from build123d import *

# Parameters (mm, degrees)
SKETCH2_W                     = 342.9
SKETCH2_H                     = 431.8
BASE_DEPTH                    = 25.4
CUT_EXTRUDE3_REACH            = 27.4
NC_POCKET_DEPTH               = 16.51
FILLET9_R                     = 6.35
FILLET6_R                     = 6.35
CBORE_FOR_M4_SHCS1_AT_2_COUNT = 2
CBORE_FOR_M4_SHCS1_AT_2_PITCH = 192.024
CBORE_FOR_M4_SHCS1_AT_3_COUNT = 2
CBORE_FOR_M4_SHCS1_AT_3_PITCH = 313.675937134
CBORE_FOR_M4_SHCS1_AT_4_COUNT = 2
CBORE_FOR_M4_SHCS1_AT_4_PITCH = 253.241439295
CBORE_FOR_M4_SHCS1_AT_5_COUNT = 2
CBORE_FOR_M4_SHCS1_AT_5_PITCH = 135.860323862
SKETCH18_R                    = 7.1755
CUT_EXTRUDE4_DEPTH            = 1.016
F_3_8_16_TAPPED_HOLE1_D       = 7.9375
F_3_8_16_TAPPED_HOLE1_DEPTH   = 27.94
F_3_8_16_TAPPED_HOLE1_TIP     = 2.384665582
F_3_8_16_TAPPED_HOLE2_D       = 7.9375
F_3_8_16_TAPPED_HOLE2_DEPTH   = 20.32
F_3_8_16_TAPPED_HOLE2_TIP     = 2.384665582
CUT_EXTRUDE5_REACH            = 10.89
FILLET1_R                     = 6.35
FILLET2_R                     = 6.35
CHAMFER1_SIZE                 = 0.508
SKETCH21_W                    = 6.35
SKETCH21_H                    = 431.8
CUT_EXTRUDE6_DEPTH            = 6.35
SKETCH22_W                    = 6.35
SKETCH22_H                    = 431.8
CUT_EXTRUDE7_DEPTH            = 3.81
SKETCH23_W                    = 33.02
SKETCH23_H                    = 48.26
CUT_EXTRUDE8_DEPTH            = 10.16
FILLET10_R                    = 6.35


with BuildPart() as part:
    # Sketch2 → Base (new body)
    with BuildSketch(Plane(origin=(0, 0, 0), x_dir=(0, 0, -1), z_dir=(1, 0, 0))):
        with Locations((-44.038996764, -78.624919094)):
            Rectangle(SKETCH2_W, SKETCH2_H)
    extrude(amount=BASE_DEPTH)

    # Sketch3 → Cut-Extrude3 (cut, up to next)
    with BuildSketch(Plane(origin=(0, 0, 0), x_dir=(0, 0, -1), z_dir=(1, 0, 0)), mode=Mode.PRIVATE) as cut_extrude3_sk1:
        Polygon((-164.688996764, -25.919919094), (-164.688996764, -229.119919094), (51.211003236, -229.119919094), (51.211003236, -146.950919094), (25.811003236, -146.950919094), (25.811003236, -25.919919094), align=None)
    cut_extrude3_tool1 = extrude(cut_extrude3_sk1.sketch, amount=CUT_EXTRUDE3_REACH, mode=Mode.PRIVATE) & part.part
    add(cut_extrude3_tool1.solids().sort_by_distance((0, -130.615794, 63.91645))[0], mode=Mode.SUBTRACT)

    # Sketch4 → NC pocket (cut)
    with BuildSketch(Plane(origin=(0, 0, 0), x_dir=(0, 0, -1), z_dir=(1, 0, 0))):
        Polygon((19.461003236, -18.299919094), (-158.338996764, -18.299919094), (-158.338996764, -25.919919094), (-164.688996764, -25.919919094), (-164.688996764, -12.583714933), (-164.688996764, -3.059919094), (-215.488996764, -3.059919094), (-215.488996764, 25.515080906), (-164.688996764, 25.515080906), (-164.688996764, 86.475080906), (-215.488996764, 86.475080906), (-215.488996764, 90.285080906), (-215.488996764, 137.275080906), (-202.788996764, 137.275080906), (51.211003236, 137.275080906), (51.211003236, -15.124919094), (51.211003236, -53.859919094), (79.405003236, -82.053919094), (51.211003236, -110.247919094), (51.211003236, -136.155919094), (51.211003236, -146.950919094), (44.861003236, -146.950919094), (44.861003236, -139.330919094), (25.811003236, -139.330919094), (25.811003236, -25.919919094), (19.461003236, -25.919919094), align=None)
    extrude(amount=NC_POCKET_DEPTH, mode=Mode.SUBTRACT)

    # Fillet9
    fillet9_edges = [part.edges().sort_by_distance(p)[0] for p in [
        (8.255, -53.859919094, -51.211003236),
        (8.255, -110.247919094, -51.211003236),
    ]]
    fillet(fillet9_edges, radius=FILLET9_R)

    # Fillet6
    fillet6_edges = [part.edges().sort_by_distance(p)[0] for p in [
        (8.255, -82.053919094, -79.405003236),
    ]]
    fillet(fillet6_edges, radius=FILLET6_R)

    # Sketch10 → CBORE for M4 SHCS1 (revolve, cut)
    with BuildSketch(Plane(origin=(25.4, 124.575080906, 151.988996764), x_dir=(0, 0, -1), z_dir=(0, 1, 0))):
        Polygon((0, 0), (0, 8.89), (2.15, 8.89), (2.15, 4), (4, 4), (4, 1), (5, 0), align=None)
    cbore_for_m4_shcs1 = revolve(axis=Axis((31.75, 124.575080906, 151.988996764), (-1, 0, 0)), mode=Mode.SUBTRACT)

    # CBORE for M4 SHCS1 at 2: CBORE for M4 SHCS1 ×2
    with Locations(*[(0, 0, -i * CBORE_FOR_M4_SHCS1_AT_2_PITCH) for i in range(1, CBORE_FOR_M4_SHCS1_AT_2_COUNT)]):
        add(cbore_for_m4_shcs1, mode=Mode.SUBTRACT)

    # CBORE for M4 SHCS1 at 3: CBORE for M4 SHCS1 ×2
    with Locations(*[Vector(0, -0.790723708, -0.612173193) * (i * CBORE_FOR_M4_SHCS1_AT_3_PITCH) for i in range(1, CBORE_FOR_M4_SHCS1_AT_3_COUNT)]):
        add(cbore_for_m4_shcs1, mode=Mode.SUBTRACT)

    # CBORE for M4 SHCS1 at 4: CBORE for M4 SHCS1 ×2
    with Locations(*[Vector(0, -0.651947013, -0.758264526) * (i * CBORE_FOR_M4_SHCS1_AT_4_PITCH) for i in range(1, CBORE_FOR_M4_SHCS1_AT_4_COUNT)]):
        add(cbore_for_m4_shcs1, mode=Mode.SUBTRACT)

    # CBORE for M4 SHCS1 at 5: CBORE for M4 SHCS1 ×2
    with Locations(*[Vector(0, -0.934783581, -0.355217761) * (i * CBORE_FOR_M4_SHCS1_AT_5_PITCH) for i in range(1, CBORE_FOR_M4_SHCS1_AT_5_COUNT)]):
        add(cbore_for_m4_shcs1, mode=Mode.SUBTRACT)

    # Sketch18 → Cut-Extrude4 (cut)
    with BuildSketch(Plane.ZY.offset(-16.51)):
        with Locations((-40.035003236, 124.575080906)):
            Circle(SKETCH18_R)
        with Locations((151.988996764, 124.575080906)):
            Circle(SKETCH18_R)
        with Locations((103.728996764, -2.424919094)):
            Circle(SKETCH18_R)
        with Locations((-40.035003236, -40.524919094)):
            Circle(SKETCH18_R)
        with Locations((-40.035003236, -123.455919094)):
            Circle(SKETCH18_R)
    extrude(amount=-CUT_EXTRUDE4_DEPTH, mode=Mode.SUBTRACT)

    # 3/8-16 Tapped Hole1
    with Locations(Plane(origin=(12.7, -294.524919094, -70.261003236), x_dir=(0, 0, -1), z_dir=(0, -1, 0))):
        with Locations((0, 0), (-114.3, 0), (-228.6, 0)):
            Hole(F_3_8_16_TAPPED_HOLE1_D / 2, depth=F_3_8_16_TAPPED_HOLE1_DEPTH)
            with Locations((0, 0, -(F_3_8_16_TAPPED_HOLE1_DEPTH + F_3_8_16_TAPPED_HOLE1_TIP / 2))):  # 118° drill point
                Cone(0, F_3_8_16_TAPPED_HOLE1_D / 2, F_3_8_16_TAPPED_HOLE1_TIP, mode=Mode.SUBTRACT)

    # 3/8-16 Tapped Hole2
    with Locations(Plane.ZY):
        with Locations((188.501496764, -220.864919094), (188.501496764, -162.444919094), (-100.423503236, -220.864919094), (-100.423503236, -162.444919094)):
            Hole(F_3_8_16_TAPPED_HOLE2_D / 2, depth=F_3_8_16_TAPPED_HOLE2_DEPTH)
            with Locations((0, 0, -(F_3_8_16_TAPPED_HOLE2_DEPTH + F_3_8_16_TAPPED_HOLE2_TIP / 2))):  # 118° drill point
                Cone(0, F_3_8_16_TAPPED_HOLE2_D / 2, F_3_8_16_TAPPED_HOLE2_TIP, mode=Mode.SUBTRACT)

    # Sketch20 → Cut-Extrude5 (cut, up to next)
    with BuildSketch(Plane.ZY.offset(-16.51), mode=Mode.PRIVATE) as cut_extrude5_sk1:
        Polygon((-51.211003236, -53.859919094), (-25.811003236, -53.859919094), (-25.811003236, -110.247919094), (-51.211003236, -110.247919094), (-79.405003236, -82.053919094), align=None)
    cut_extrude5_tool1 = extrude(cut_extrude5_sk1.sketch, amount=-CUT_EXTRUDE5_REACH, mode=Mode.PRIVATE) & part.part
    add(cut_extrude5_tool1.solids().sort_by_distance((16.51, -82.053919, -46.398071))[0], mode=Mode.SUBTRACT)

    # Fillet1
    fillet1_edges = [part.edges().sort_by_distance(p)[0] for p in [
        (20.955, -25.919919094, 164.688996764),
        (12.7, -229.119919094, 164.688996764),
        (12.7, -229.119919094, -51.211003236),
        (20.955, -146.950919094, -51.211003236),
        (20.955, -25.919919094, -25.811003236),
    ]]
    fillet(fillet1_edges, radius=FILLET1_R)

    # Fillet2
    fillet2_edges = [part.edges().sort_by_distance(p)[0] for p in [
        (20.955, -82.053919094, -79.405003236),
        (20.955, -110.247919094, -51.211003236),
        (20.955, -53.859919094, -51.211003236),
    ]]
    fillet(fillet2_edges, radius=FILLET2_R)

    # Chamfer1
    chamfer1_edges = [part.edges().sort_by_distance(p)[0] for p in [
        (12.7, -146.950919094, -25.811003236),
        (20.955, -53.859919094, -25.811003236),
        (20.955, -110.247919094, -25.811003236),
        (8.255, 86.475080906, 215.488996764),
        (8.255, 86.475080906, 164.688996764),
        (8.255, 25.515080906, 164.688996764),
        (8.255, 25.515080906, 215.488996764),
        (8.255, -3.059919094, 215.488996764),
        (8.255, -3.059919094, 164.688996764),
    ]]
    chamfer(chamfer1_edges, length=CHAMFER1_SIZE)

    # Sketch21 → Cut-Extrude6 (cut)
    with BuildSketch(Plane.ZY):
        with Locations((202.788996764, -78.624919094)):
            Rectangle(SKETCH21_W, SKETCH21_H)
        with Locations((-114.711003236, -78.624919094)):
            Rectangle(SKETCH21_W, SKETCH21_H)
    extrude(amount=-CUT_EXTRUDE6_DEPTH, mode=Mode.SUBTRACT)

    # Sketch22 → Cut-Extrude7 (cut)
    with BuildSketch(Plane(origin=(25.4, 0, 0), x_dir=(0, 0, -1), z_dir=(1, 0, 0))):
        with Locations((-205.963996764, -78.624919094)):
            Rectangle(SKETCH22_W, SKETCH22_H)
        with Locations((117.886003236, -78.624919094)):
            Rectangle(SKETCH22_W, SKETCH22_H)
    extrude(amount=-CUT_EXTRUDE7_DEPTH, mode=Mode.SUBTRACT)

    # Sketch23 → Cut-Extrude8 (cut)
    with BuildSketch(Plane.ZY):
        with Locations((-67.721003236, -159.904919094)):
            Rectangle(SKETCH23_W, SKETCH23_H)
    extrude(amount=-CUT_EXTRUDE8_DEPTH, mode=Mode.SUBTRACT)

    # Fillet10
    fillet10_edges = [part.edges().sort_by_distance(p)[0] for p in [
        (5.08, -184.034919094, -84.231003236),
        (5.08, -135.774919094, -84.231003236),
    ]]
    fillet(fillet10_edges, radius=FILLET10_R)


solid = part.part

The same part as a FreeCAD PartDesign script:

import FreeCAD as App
import Part
import Sketcher
from FreeCAD import Vector
Q = App.Units.Quantity


def edges_at(feature, points):
    """Names of the edges that pass closest to the given points."""
    edges = feature.Shape.Edges
    near = lambda p: min(range(len(edges)), key=lambda i: edges[i].distToShape(Part.Vertex(*p))[0])
    return sorted({f"Edge{near(p) + 1}" for p in points})

doc = App.newDocument("Part")
body = doc.addObject("PartDesign::Body", "Body")

sketch1 = body.newObject("Sketcher::SketchObject", "Sketch")
sketch1.AttachmentSupport = (doc.getObject("YZ_Plane"), [""])
sketch1.MapMode = "FlatFace"
sketch1.addGeometry([
    Part.LineSegment(Vector(137, 215, 0), Vector(-295, 215, 0)),
    Part.LineSegment(Vector(-295, 215, 0), Vector(-295, -127, 0)),
    Part.LineSegment(Vector(-295, -127, 0), Vector(137, -127, 0)),
    Part.LineSegment(Vector(137, -127, 0), Vector(137, 215, 0)),
], False)
sketch1.addConstraint([
    Sketcher.Constraint("Coincident", 0, 2, 1, 1),
    Sketcher.Constraint("Coincident", 1, 2, 2, 1),
    Sketcher.Constraint("Coincident", 2, 2, 3, 1),
    Sketcher.Constraint("Coincident", 3, 2, 0, 1),
    Sketcher.Constraint("Horizontal", 0),
    Sketcher.Constraint("Vertical", 1),
    Sketcher.Constraint("Horizontal", 2),
    Sketcher.Constraint("Vertical", 3),
    Sketcher.Constraint("DistanceX", 0, 2, 0, 1, Q("17 in")),
    Sketcher.Constraint("DistanceY", 1, 2, 1, 1, Q("13.5 in")),
    Sketcher.Constraint("DistanceX", 0, 2, -1, 1, Q("294.524919 mm")),
    Sketcher.Constraint("DistanceY", -1, 1, 0, 2, Q("215.488997 mm")),
])
pad1 = body.newObject("PartDesign::Pad", "Pad")
pad1.Profile = sketch1
pad1.Length = Q("1 in")

sketch2 = body.newObject("Sketcher::SketchObject", "Sketch001")
sketch2.AttachmentSupport = (doc.getObject("YZ_Plane"), [""])
sketch2.MapMode = "FlatFace"
sketch2.addGeometry([
    Part.LineSegment(Vector(-26, 165, 0), Vector(-229, 165, 0)),
    Part.LineSegment(Vector(-229, 165, 0), Vector(-229, -51, 0)),
    Part.LineSegment(Vector(-229, -51, 0), Vector(-147, -51, 0)),
    Part.LineSegment(Vector(-147, -51, 0), Vector(-147, -26, 0)),
    Part.LineSegment(Vector(-147, -26, 0), Vector(-26, -26, 0)),
    Part.LineSegment(Vector(-26, -26, 0), Vector(-26, 165, 0)),
], False)
sketch2.addConstraint([
    Sketcher.Constraint("Coincident", 0, 2, 1, 1),
    Sketcher.Constraint("Coincident", 1, 2, 2, 1),
    Sketcher.Constraint("Coincident", 2, 2, 3, 1),
    Sketcher.Constraint("Coincident", 3, 2, 4, 1),
    Sketcher.Constraint("Coincident", 4, 2, 5, 1),
    Sketcher.Constraint("Coincident", 5, 2, 0, 1),
    Sketcher.Constraint("Horizontal", 0),
    Sketcher.Constraint("Vertical", 1),
    Sketcher.Constraint("Horizontal", 2),
    Sketcher.Constraint("Vertical", 3),
    Sketcher.Constraint("Horizontal", 4),
    Sketcher.Constraint("Vertical", 5),
    Sketcher.Constraint("DistanceX", 0, 2, 0, 1, Q("8 in")),
    Sketcher.Constraint("DistanceY", 3, 1, 3, 2, Q("1 in")),
    Sketcher.Constraint("DistanceY", 1, 2, 1, 1, Q("8.5 in")),
    Sketcher.Constraint("DistanceX", 2, 1, 2, 2, Q("3.235 in")),
    Sketcher.Constraint("DistanceX", 0, 2, -1, 1, Q("229.119919 mm")),
    Sketcher.Constraint("DistanceY", -1, 1, 0, 2, Q("164.688997 mm")),
])
pocket1 = body.newObject("PartDesign::Pocket", "Pocket")
pocket1.Profile = sketch2
pocket1.Type = "UpToFirst"
pocket1.Reversed = True

sketch3 = body.newObject("Sketcher::SketchObject", "Sketch002")
sketch3.AttachmentSupport = (doc.getObject("YZ_Plane"), [""])
sketch3.MapMode = "FlatFace"
sketch3.addGeometry([
    Part.LineSegment(Vector(-18, 158, 0), Vector(-18, -19, 0)),
    Part.LineSegment(Vector(-18, -19, 0), Vector(-26, -19, 0)),
    Part.LineSegment(Vector(-26, -19, 0), Vector(-26, -26, 0)),
    Part.LineSegment(Vector(-26, -26, 0), Vector(-139, -26, 0)),
    Part.LineSegment(Vector(-139, -26, 0), Vector(-139, -45, 0)),
    Part.LineSegment(Vector(-139, -45, 0), Vector(-147, -45, 0)),
    Part.LineSegment(Vector(-147, -45, 0), Vector(-147, -51, 0)),
    Part.LineSegment(Vector(-147, -51, 0), Vector(-110, -51, 0)),
    Part.LineSegment(Vector(-110, -51, 0), Vector(-82, -79, 0)),
    Part.LineSegment(Vector(-82, -79, 0), Vector(-54, -51, 0)),
    Part.LineSegment(Vector(-54, -51, 0), Vector(137, -51, 0)),
    Part.LineSegment(Vector(137, -51, 0), Vector(137, 215, 0)),
    Part.LineSegment(Vector(137, 215, 0), Vector(86, 215, 0)),
    Part.LineSegment(Vector(86, 215, 0), Vector(86, 165, 0)),
    Part.LineSegment(Vector(86, 165, 0), Vector(26, 165, 0)),
    Part.LineSegment(Vector(26, 165, 0), Vector(26, 215, 0)),
    Part.LineSegment(Vector(26, 215, 0), Vector(-3, 215, 0)),
    Part.LineSegment(Vector(-3, 215, 0), Vector(-3, 165, 0)),
    Part.LineSegment(Vector(-3, 165, 0), Vector(-26, 165, 0)),
    Part.LineSegment(Vector(-26, 165, 0), Vector(-26, 158, 0)),
    Part.LineSegment(Vector(-26, 158, 0), Vector(-18, 158, 0)),
], False)
sketch3.addConstraint([
    Sketcher.Constraint("Coincident", 0, 2, 1, 1),
    Sketcher.Constraint("Coincident", 1, 2, 2, 1),
    Sketcher.Constraint("Coincident", 2, 2, 3, 1),
    Sketcher.Constraint("Coincident", 3, 2, 4, 1),
    Sketcher.Constraint("Coincident", 4, 2, 5, 1),
    Sketcher.Constraint("Coincident", 5, 2, 6, 1),
    Sketcher.Constraint("Coincident", 6, 2, 7, 1),
    Sketcher.Constraint("Coincident", 7, 2, 8, 1),
    Sketcher.Constraint("Coincident", 8, 2, 9, 1),
    Sketcher.Constraint("Coincident", 9, 2, 10, 1),
    Sketcher.Constraint("Coincident", 10, 2, 11, 1),
    Sketcher.Constraint("Coincident", 11, 2, 12, 1),
    Sketcher.Constraint("Coincident", 12, 2, 13, 1),
    Sketcher.Constraint("Coincident", 13, 2, 14, 1),
    Sketcher.Constraint("Coincident", 14, 2, 15, 1),
    Sketcher.Constraint("Coincident", 15, 2, 16, 1),
    Sketcher.Constraint("Coincident", 16, 2, 17, 1),
    Sketcher.Constraint("Coincident", 17, 2, 18, 1),
    Sketcher.Constraint("Coincident", 18, 2, 19, 1),
    Sketcher.Constraint("Coincident", 19, 2, 20, 1),
    Sketcher.Constraint("Coincident", 20, 2, 0, 1),
    Sketcher.Constraint("Vertical", 0),
    Sketcher.Constraint("Horizontal", 1),
    Sketcher.Constraint("Vertical", 2),
    Sketcher.Constraint("Horizontal", 3),
    Sketcher.Constraint("Vertical", 4),
    Sketcher.Constraint("Horizontal", 5),
    Sketcher.Constraint("Vertical", 6),
    Sketcher.Constraint("Horizontal", 7),
    Sketcher.Constraint("Horizontal", 10),
    Sketcher.Constraint("Vertical", 11),
    Sketcher.Constraint("Horizontal", 12),
    Sketcher.Constraint("Vertical", 13),
    Sketcher.Constraint("Horizontal", 14),
    Sketcher.Constraint("Vertical", 15),
    Sketcher.Constraint("Horizontal", 16),
    Sketcher.Constraint("Vertical", 17),
    Sketcher.Constraint("Horizontal", 18),
    Sketcher.Constraint("Vertical", 19),
    Sketcher.Constraint("Horizontal", 20),
    Sketcher.Constraint("Perpendicular", 8, 9),
    Sketcher.Constraint("Horizontal", 7, 2, 9, 2),
    Sketcher.Constraint("Horizontal", 12, 2, 15, 2),
    Sketcher.Constraint("Horizontal", 14, 2, 17, 2),
    Sketcher.Constraint("Vertical", 2, 2, 18, 2),
    Sketcher.Constraint("Equal", 1, 5),
    Sketcher.Constraint("Equal", 2, 6),
    Sketcher.Constraint("Equal", 12, 13),
    Sketcher.Constraint("Equal", 6, 19),
    Sketcher.Constraint("Equal", 8, 9),
    Sketcher.Constraint("DistanceX", 12, 2, 12, 1, Q("2 in")),
    Sketcher.Constraint("DistanceY", 0, 2, 0, 1, Q("7 in")),
    Sketcher.Constraint("DistanceX", 1, 2, 1, 1, Q("0.3 in")),
    Sketcher.Constraint("DistanceX", 14, 2, 14, 1, Q("2.4 in")),
    Sketcher.Constraint("DistanceX", 18, 2, 18, 1, Q("0.9 in")),
    Sketcher.Constraint("DistanceY", 11, 1, 11, 2, Q("10.5 in")),
    Sketcher.Constraint("DistanceY", 4, 2, 1, 2, Q("1 in")),
    Sketcher.Constraint("DistanceX", 9, 2, 2, 2, Q("1.1 in")),
    Sketcher.Constraint("DistanceX", 3, 2, 3, 1, Q("4.465 in")),
    Sketcher.Constraint("DistanceX", 7, 1, 7, 2, Q("1.445 in")),
    Sketcher.Constraint("DistanceX", 10, 1, 10, 2, Q("7.525 in")),
    Sketcher.Constraint("DistanceX", 0, 2, -1, 1, Q("18.299919 mm")),
    Sketcher.Constraint("DistanceY", 0, 2, -1, 1, Q("19.461003 mm")),
])
pocket2 = body.newObject("PartDesign::Pocket", "Pocket001")
pocket2.Profile = sketch3
pocket2.Length = Q("0.65 in")
pocket2.Reversed = True
doc.recompute()

fillet = body.newObject("PartDesign::Fillet", "Fillet")
fillet.Base = (pocket2, edges_at(pocket2, [(8.255, -53.86, -51.211), (8.255, -110.248, -51.211)]))
fillet.Radius = Q("0.25 in")
doc.recompute()

fillet2 = body.newObject("PartDesign::Fillet", "Fillet001")
fillet2.Base = (fillet, edges_at(fillet, [(8.255, -82.054, -79.405)]))
fillet2.Radius = Q("0.25 in")

sketch4 = body.newObject("Sketcher::SketchObject", "Sketch003")
sketch4.AttachmentSupport = (doc.getObject("XZ_Plane"), [""])
sketch4.MapMode = "FlatFace"
sketch4.AttachmentOffset = App.Placement(Vector(0, 0, -124.575081), App.Rotation())
sketch4.addGeometry([
    Part.LineSegment(Vector(16.5, 152, 0), Vector(25.4, 152, 0)),
    Part.LineSegment(Vector(25.4, 152, 0), Vector(25.4, 147, 0)),
    Part.LineSegment(Vector(25.4, 147, 0), Vector(24.4, 148, 0)),
    Part.LineSegment(Vector(24.4, 148, 0), Vector(21.4, 148, 0)),
    Part.LineSegment(Vector(21.4, 148, 0), Vector(21.4, 149.8, 0)),
    Part.LineSegment(Vector(21.4, 149.8, 0), Vector(16.5, 149.8, 0)),
    Part.LineSegment(Vector(16.5, 149.8, 0), Vector(16.5, 152, 0)),
], False)
sketch4.addGeometry(Part.LineSegment(Vector(25.4, 152, 0), Vector(16.5, 152, 0)), True)
sketch4.addConstraint([
    Sketcher.Constraint("Coincident", 0, 2, 1, 1),
    Sketcher.Constraint("Coincident", 1, 2, 2, 1),
    Sketcher.Constraint("Coincident", 2, 2, 3, 1),
    Sketcher.Constraint("Coincident", 3, 2, 4, 1),
    Sketcher.Constraint("Coincident", 4, 2, 5, 1),
    Sketcher.Constraint("Coincident", 5, 2, 6, 1),
    Sketcher.Constraint("Coincident", 6, 2, 0, 1),
    Sketcher.Constraint("Horizontal", 0),
    Sketcher.Constraint("Vertical", 1),
    Sketcher.Constraint("Horizontal", 3),
    Sketcher.Constraint("Vertical", 4),
    Sketcher.Constraint("Horizontal", 5),
    Sketcher.Constraint("Vertical", 6),
    Sketcher.Constraint("Horizontal", 7),
    Sketcher.Constraint("Coincident", 7, 1, 0, 2),
    Sketcher.Constraint("Vertical", 5, 2, 7, 2),
    Sketcher.Constraint("DistanceX", -1, 1, 0, 2, Q("1 in")),
    Sketcher.Constraint("Angle", 2, Q("135 deg")),
    Sketcher.Constraint("DistanceX", 0, 1, 0, 2, Q("0.35 in")),
    Sketcher.Constraint("DistanceX", 3, 2, 3, 1, Q("3 mm")),
    Sketcher.Constraint("DistanceX", 5, 2, 5, 1, Q("4.89 mm")),
    Sketcher.Constraint("DistanceY", 1, 2, 1, 1, Q("5 mm")),
    Sketcher.Constraint("DistanceY", 4, 1, 4, 2, Q("1.85 mm")),
    Sketcher.Constraint("DistanceY", -1, 1, 0, 2, Q("151.988997 mm")),
])
groove = body.newObject("PartDesign::Groove", "Groove")
groove.Profile = sketch4
groove.ReferenceAxis = (sketch4, ["Axis0"])
groove.Angle = 360
doc.recompute()

linearpattern = body.newObject("PartDesign::LinearPattern", "LinearPattern")
linearpattern.Originals = [groove]
linearpattern.Direction = (doc.getObject("Z_Axis"), [""])
linearpattern.Mode = "offset"
linearpattern.Offset = Q("7.56 in")
linearpattern.Occurrences = 2
linearpattern.Reversed = True
body.Tip = linearpattern
doc.recompute()

datumline = body.newObject("PartDesign::Line", "DatumLine")
datumline.Placement = App.Placement(Vector(0, 0, 0), App.Rotation(Vector(0, 0, 1), Vector(0, -0.790723708, -0.612173193)))
linearpattern2 = body.newObject("PartDesign::LinearPattern", "LinearPattern001")
linearpattern2.Originals = [groove]
linearpattern2.Direction = (datumline, [""])
linearpattern2.Mode = "offset"
linearpattern2.Offset = 313.675937
linearpattern2.Occurrences = 2
body.Tip = linearpattern2
doc.recompute()

datumline2 = body.newObject("PartDesign::Line", "DatumLine001")
datumline2.Placement = App.Placement(Vector(0, 0, 0), App.Rotation(Vector(0, 0, 1), Vector(0, -0.651947013, -0.758264526)))
linearpattern3 = body.newObject("PartDesign::LinearPattern", "LinearPattern002")
linearpattern3.Originals = [groove]
linearpattern3.Direction = (datumline2, [""])
linearpattern3.Mode = "offset"
linearpattern3.Offset = 253.241439
linearpattern3.Occurrences = 2
body.Tip = linearpattern3
doc.recompute()

datumline3 = body.newObject("PartDesign::Line", "DatumLine002")
datumline3.Placement = App.Placement(Vector(0, 0, 0), App.Rotation(Vector(0, 0, 1), Vector(0, -0.934783581, -0.355217761)))
linearpattern4 = body.newObject("PartDesign::LinearPattern", "LinearPattern003")
linearpattern4.Originals = [groove]
linearpattern4.Direction = (datumline3, [""])
linearpattern4.Mode = "offset"
linearpattern4.Offset = 135.860324
linearpattern4.Occurrences = 2
body.Tip = linearpattern4

sketch5 = body.newObject("Sketcher::SketchObject", "Sketch004")
sketch5.AttachmentSupport = (doc.getObject("YZ_Plane"), [""])
sketch5.MapMode = "FlatFace"
sketch5.AttachmentOffset = App.Placement(Vector(0, 0, 0.65 * 25.4), App.Rotation())
sketch5.addGeometry([
    Part.Circle(Vector(125, -40, 0), Vector(0, 0, 1), 7),
    Part.Circle(Vector(125, 152, 0), Vector(0, 0, 1), 7),
    Part.Circle(Vector(-2, 104, 0), Vector(0, 0, 1), 7),
    Part.Circle(Vector(-41, -40, 0), Vector(0, 0, 1), 7),
    Part.Circle(Vector(-123, -40, 0), Vector(0, 0, 1), 7),
], False)
sketch5.addConstraint([
    Sketcher.Constraint("Equal", 0, 1),
    Sketcher.Constraint("Equal", 1, 2),
    Sketcher.Constraint("Equal", 2, 3),
    Sketcher.Constraint("Equal", 3, 4),
    Sketcher.Constraint("Horizontal", 0, 3, 3, 3),
    Sketcher.Constraint("Horizontal", 3, 3, 4, 3),
    Sketcher.Constraint("Vertical", 0, 3, 1, 3),
    Sketcher.Constraint("Diameter", 0, Q("0.565 in")),
    Sketcher.Constraint("DistanceX", 2, 3, 1, 3, Q("5 in")),
    Sketcher.Constraint("DistanceY", 2, 3, 1, 3, Q("1.9 in")),
    Sketcher.Constraint("DistanceX", 3, 3, 2, 3, Q("1.5 in")),
    Sketcher.Constraint("DistanceY", 0, 3, 1, 3, Q("7.56 in")),
    Sketcher.Constraint("DistanceX", 4, 3, 3, 3, Q("3.265 in")),
    Sketcher.Constraint("DistanceX", -1, 1, 0, 3, Q("124.575081 mm")),
    Sketcher.Constraint("DistanceY", 0, 3, -1, 1, Q("40.035003 mm")),
])
pocket3 = body.newObject("PartDesign::Pocket", "Pocket002")
pocket3.Profile = sketch5
pocket3.Length = Q("0.04 in")
pocket3.Reversed = True

sketch6 = body.newObject("Sketcher::SketchObject", "Sketch005")
sketch6.AttachmentSupport = (doc.getObject("XZ_Plane"), [""])
sketch6.MapMode = "FlatFace"
sketch6.AttachmentOffset = App.Placement(Vector(0, 0, 294.524919), App.Rotation())
sketch6.addGeometry([
    Part.Circle(Vector(12.7, -70.3, 0), Vector(0, 0, 1), 4),
    Part.Circle(Vector(12.7, 44, 0), Vector(0, 0, 1), 4),
    Part.Circle(Vector(12.7, 158.3, 0), Vector(0, 0, 1), 4),
], False)
sketch6.addConstraint([
    Sketcher.Constraint("Equal", 0, 1),
    Sketcher.Constraint("Equal", 1, 2),
    Sketcher.Constraint("Vertical", 0, 3, 1, 3),
    Sketcher.Constraint("Vertical", 1, 3, 2, 3),
    Sketcher.Constraint("Diameter", 0, Q("0.3125 in")),
    Sketcher.Constraint("DistanceY", 0, 3, 2, 3, Q("9 in")),
    Sketcher.Constraint("DistanceX", -1, 1, 0, 3, Q("0.5 in")),
    Sketcher.Constraint("DistanceY", 0, 3, 1, 3, Q("4.5 in")),
    Sketcher.Constraint("DistanceY", 0, 3, -1, 1, Q("70.261003 mm")),
])
doc.recompute()
hole = body.newObject("PartDesign::Hole", "Hole")
hole.Profile = sketch6
hole.ThreadType = "None"
hole.Diameter = Q("0.3125 in")
hole.DepthType = "Dimension"
hole.Depth = Q("1.1 in")
hole.DrillPoint = "Angled"
hole.DrillPointAngle = 118

sketch7 = body.newObject("Sketcher::SketchObject", "Sketch006")
sketch7.AttachmentSupport = (doc.getObject("YZ_Plane"), [""])
sketch7.MapMode = "FlatFace"
sketch7.addGeometry([
    Part.Circle(Vector(-220.9, 188.5, 0), Vector(0, 0, 1), 4),
    Part.Circle(Vector(-162.4, 188.5, 0), Vector(0, 0, 1), 4),
    Part.Circle(Vector(-220.9, -100.4, 0), Vector(0, 0, 1), 4),
    Part.Circle(Vector(-162.4, -100.4, 0), Vector(0, 0, 1), 4),
], False)
sketch7.addConstraint([
    Sketcher.Constraint("Equal", 0, 1),
    Sketcher.Constraint("Equal", 1, 2),
    Sketcher.Constraint("Equal", 2, 3),
    Sketcher.Constraint("Horizontal", 0, 3, 1, 3),
    Sketcher.Constraint("Horizontal", 2, 3, 3, 3),
    Sketcher.Constraint("Vertical", 0, 3, 2, 3),
    Sketcher.Constraint("Vertical", 1, 3, 3, 3),
    Sketcher.Constraint("Diameter", 0, Q("0.3125 in")),
    Sketcher.Constraint("DistanceX", 0, 3, 1, 3, Q("2.3 in")),
    Sketcher.Constraint("DistanceY", 2, 3, 0, 3, Q("11.375 in")),
    Sketcher.Constraint("DistanceX", 0, 3, -1, 1, Q("220.864919 mm")),
    Sketcher.Constraint("DistanceY", -1, 1, 0, 3, Q("188.501497 mm")),
])
doc.recompute()
hole2 = body.newObject("PartDesign::Hole", "Hole001")
hole2.Profile = sketch7
hole2.ThreadType = "None"
hole2.Diameter = Q("0.3125 in")
hole2.DepthType = "Dimension"
hole2.Depth = Q("0.8 in")
hole2.DrillPoint = "Angled"
hole2.DrillPointAngle = 118
hole2.Reversed = True

sketch8 = body.newObject("Sketcher::SketchObject", "Sketch007")
sketch8.AttachmentSupport = (doc.getObject("YZ_Plane"), [""])
sketch8.MapMode = "FlatFace"
sketch8.AttachmentOffset = App.Placement(Vector(0, 0, 0.65 * 25.4), App.Rotation())
sketch8.addGeometry([
    Part.LineSegment(Vector(-54, -26, 0), Vector(-54, -51, 0)),
    Part.LineSegment(Vector(-54, -51, 0), Vector(-82, -79, 0)),
    Part.LineSegment(Vector(-82, -79, 0), Vector(-110, -51, 0)),
    Part.LineSegment(Vector(-110, -51, 0), Vector(-110, -26, 0)),
    Part.LineSegment(Vector(-110, -26, 0), Vector(-54, -26, 0)),
], False)
sketch8.addConstraint([
    Sketcher.Constraint("Coincident", 0, 2, 1, 1),
    Sketcher.Constraint("Coincident", 1, 2, 2, 1),
    Sketcher.Constraint("Coincident", 2, 2, 3, 1),
    Sketcher.Constraint("Coincident", 3, 2, 4, 1),
    Sketcher.Constraint("Coincident", 4, 2, 0, 1),
    Sketcher.Constraint("Vertical", 0),
    Sketcher.Constraint("Vertical", 3),
    Sketcher.Constraint("Horizontal", 4),
    Sketcher.Constraint("Perpendicular", 1, 2),
    Sketcher.Constraint("Horizontal", 0, 2, 2, 2),
    Sketcher.Constraint("Equal", 1, 2),
    Sketcher.Constraint("DistanceY", 0, 2, 0, 1, Q("1 in")),
    Sketcher.Constraint("DistanceX", 4, 1, 4, 2, Q("2.22 in")),
    Sketcher.Constraint("DistanceX", 0, 2, -1, 1, Q("53.859919 mm")),
    Sketcher.Constraint("DistanceY", 0, 2, -1, 1, Q("51.211003 mm")),
])
pocket4 = body.newObject("PartDesign::Pocket", "Pocket003")
pocket4.Profile = sketch8
pocket4.Type = "UpToFirst"
pocket4.Reversed = True
doc.recompute()

fillet3 = body.newObject("PartDesign::Fillet", "Fillet002")
fillet3.Base = (pocket4, edges_at(pocket4, [
    (20.955, -25.92, 164.689),
    (12.7, -229.12, 164.689),
    (12.7, -229.12, -51.211),
    (20.955, -146.951, -51.211),
    (20.955, -25.92, -25.811),
]))
fillet3.Radius = Q("0.25 in")
doc.recompute()

fillet4 = body.newObject("PartDesign::Fillet", "Fillet003")
fillet4.Base = (fillet3, edges_at(fillet3, [(20.955, -82.054, -79.405), (20.955, -110.248, -51.211), (20.955, -53.86, -51.211)]))
fillet4.Radius = Q("0.25 in")
doc.recompute()

chamfer = body.newObject("PartDesign::Chamfer", "Chamfer")
chamfer.Base = (fillet4, edges_at(fillet4, [
    (12.7, -146.951, -25.811),
    (20.955, -53.86, -25.811),
    (20.955, -110.248, -25.811),
    (8.255, 86.475, 215.489),
    (8.255, 86.475, 164.689),
    (8.255, 25.515, 164.689),
    (8.255, 25.515, 215.489),
    (8.255, -3.06, 215.489),
    (8.255, -3.06, 164.689),
]))
chamfer.Size = Q("0.02 in")

sketch9 = body.newObject("Sketcher::SketchObject", "Sketch008")
sketch9.AttachmentSupport = (doc.getObject("YZ_Plane"), [""])
sketch9.MapMode = "FlatFace"
sketch9.addGeometry([
    Part.LineSegment(Vector(137, 200, 0), Vector(-295, 200, 0)),
    Part.LineSegment(Vector(-295, 200, 0), Vector(-295, 206, 0)),
    Part.LineSegment(Vector(-295, 206, 0), Vector(137, 206, 0)),
    Part.LineSegment(Vector(137, 206, 0), Vector(137, 200, 0)),
    Part.LineSegment(Vector(137, -118, 0), Vector(-295, -118, 0)),
    Part.LineSegment(Vector(-295, -118, 0), Vector(-295, -112, 0)),
    Part.LineSegment(Vector(-295, -112, 0), Vector(137, -112, 0)),
    Part.LineSegment(Vector(137, -112, 0), Vector(137, -118, 0)),
], False)
sketch9.addConstraint([
    Sketcher.Constraint("Coincident", 0, 2, 1, 1),
    Sketcher.Constraint("Coincident", 1, 2, 2, 1),
    Sketcher.Constraint("Coincident", 2, 2, 3, 1),
    Sketcher.Constraint("Coincident", 3, 2, 0, 1),
    Sketcher.Constraint("Coincident", 4, 2, 5, 1),
    Sketcher.Constraint("Coincident", 5, 2, 6, 1),
    Sketcher.Constraint("Coincident", 6, 2, 7, 1),
    Sketcher.Constraint("Coincident", 7, 2, 4, 1),
    Sketcher.Constraint("Horizontal", 0),
    Sketcher.Constraint("Vertical", 1),
    Sketcher.Constraint("Horizontal", 2),
    Sketcher.Constraint("Vertical", 3),
    Sketcher.Constraint("Horizontal", 4),
    Sketcher.Constraint("Vertical", 5),
    Sketcher.Constraint("Horizontal", 6),
    Sketcher.Constraint("Vertical", 7),
    Sketcher.Constraint("Vertical", 1, 2, 4, 2),
    Sketcher.Constraint("Vertical", 3, 2, 6, 2),
    Sketcher.Constraint("Equal", 3, 5),
    Sketcher.Constraint("DistanceX", 0, 2, 0, 1, Q("17 in")),
    Sketcher.Constraint("DistanceY", 1, 1, 1, 2, Q("0.25 in")),
    Sketcher.Constraint("DistanceY", 4, 2, 0, 2, Q("12.5 in")),
    Sketcher.Constraint("DistanceX", 0, 2, -1, 1, Q("294.524919 mm")),
    Sketcher.Constraint("DistanceY", -1, 1, 0, 2, Q("199.613997 mm")),
])
pocket5 = body.newObject("PartDesign::Pocket", "Pocket004")
pocket5.Profile = sketch9
pocket5.Length = Q("0.25 in")
pocket5.Reversed = True

sketch10 = body.newObject("Sketcher::SketchObject", "Sketch009")
sketch10.AttachmentSupport = (doc.getObject("YZ_Plane"), [""])
sketch10.MapMode = "FlatFace"
sketch10.AttachmentOffset = App.Placement(Vector(0, 0, 1 * 25.4), App.Rotation())
sketch10.addGeometry([
    Part.LineSegment(Vector(137, 209, 0), Vector(-295, 209, 0)),
    Part.LineSegment(Vector(-295, 209, 0), Vector(-295, 203, 0)),
    Part.LineSegment(Vector(-295, 203, 0), Vector(137, 203, 0)),
    Part.LineSegment(Vector(137, 203, 0), Vector(137, 209, 0)),
    Part.LineSegment(Vector(137, -115, 0), Vector(-295, -115, 0)),
    Part.LineSegment(Vector(-295, -115, 0), Vector(-295, -121, 0)),
    Part.LineSegment(Vector(-295, -121, 0), Vector(137, -121, 0)),
    Part.LineSegment(Vector(137, -121, 0), Vector(137, -115, 0)),
], False)
sketch10.addConstraint([
    Sketcher.Constraint("Coincident", 0, 2, 1, 1),
    Sketcher.Constraint("Coincident", 1, 2, 2, 1),
    Sketcher.Constraint("Coincident", 2, 2, 3, 1),
    Sketcher.Constraint("Coincident", 3, 2, 0, 1),
    Sketcher.Constraint("Coincident", 4, 2, 5, 1),
    Sketcher.Constraint("Coincident", 5, 2, 6, 1),
    Sketcher.Constraint("Coincident", 6, 2, 7, 1),
    Sketcher.Constraint("Coincident", 7, 2, 4, 1),
    Sketcher.Constraint("Horizontal", 0),
    Sketcher.Constraint("Vertical", 1),
    Sketcher.Constraint("Horizontal", 2),
    Sketcher.Constraint("Vertical", 3),
    Sketcher.Constraint("Horizontal", 4),
    Sketcher.Constraint("Vertical", 5),
    Sketcher.Constraint("Horizontal", 6),
    Sketcher.Constraint("Vertical", 7),
    Sketcher.Constraint("Vertical", 1, 2, 4, 2),
    Sketcher.Constraint("Vertical", 3, 2, 6, 2),
    Sketcher.Constraint("Equal", 3, 5),
    Sketcher.Constraint("DistanceX", 0, 2, 0, 1, Q("17 in")),
    Sketcher.Constraint("DistanceY", 5, 2, 0, 2, Q("13 in")),
    Sketcher.Constraint("DistanceY", 1, 2, 1, 1, Q("0.25 in")),
    Sketcher.Constraint("DistanceX", 0, 2, -1, 1, Q("294.524919 mm")),
    Sketcher.Constraint("DistanceY", -1, 1, 0, 2, Q("209.138997 mm")),
])
pocket6 = body.newObject("PartDesign::Pocket", "Pocket005")
pocket6.Profile = sketch10
pocket6.Length = Q("0.15 in")

sketch11 = body.newObject("Sketcher::SketchObject", "Sketch010")
sketch11.AttachmentSupport = (doc.getObject("YZ_Plane"), [""])
sketch11.MapMode = "FlatFace"
sketch11.addGeometry([
    Part.LineSegment(Vector(-136, -84, 0), Vector(-184, -84, 0)),
    Part.LineSegment(Vector(-184, -84, 0), Vector(-184, -51, 0)),
    Part.LineSegment(Vector(-184, -51, 0), Vector(-136, -51, 0)),
    Part.LineSegment(Vector(-136, -51, 0), Vector(-136, -84, 0)),
], False)
sketch11.addConstraint([
    Sketcher.Constraint("Coincident", 0, 2, 1, 1),
    Sketcher.Constraint("Coincident", 1, 2, 2, 1),
    Sketcher.Constraint("Coincident", 2, 2, 3, 1),
    Sketcher.Constraint("Coincident", 3, 2, 0, 1),
    Sketcher.Constraint("Horizontal", 0),
    Sketcher.Constraint("Vertical", 1),
    Sketcher.Constraint("Horizontal", 2),
    Sketcher.Constraint("Vertical", 3),
    Sketcher.Constraint("DistanceX", 0, 2, 0, 1, Q("1.9 in")),
    Sketcher.Constraint("DistanceY", 1, 1, 1, 2, Q("1.3 in")),
    Sketcher.Constraint("DistanceX", 0, 2, -1, 1, Q("184.034919 mm")),
    Sketcher.Constraint("DistanceY", 0, 2, -1, 1, Q("84.231003 mm")),
])
pocket7 = body.newObject("PartDesign::Pocket", "Pocket006")
pocket7.Profile = sketch11
pocket7.Length = Q("0.4 in")
pocket7.Reversed = True
doc.recompute()

fillet5 = body.newObject("PartDesign::Fillet", "Fillet004")
fillet5.Base = (pocket7, edges_at(pocket7, [(5.08, -184.035, -84.231), (5.08, -135.775, -84.231)]))
fillet5.Radius = Q("0.25 in")

doc.recompute()
